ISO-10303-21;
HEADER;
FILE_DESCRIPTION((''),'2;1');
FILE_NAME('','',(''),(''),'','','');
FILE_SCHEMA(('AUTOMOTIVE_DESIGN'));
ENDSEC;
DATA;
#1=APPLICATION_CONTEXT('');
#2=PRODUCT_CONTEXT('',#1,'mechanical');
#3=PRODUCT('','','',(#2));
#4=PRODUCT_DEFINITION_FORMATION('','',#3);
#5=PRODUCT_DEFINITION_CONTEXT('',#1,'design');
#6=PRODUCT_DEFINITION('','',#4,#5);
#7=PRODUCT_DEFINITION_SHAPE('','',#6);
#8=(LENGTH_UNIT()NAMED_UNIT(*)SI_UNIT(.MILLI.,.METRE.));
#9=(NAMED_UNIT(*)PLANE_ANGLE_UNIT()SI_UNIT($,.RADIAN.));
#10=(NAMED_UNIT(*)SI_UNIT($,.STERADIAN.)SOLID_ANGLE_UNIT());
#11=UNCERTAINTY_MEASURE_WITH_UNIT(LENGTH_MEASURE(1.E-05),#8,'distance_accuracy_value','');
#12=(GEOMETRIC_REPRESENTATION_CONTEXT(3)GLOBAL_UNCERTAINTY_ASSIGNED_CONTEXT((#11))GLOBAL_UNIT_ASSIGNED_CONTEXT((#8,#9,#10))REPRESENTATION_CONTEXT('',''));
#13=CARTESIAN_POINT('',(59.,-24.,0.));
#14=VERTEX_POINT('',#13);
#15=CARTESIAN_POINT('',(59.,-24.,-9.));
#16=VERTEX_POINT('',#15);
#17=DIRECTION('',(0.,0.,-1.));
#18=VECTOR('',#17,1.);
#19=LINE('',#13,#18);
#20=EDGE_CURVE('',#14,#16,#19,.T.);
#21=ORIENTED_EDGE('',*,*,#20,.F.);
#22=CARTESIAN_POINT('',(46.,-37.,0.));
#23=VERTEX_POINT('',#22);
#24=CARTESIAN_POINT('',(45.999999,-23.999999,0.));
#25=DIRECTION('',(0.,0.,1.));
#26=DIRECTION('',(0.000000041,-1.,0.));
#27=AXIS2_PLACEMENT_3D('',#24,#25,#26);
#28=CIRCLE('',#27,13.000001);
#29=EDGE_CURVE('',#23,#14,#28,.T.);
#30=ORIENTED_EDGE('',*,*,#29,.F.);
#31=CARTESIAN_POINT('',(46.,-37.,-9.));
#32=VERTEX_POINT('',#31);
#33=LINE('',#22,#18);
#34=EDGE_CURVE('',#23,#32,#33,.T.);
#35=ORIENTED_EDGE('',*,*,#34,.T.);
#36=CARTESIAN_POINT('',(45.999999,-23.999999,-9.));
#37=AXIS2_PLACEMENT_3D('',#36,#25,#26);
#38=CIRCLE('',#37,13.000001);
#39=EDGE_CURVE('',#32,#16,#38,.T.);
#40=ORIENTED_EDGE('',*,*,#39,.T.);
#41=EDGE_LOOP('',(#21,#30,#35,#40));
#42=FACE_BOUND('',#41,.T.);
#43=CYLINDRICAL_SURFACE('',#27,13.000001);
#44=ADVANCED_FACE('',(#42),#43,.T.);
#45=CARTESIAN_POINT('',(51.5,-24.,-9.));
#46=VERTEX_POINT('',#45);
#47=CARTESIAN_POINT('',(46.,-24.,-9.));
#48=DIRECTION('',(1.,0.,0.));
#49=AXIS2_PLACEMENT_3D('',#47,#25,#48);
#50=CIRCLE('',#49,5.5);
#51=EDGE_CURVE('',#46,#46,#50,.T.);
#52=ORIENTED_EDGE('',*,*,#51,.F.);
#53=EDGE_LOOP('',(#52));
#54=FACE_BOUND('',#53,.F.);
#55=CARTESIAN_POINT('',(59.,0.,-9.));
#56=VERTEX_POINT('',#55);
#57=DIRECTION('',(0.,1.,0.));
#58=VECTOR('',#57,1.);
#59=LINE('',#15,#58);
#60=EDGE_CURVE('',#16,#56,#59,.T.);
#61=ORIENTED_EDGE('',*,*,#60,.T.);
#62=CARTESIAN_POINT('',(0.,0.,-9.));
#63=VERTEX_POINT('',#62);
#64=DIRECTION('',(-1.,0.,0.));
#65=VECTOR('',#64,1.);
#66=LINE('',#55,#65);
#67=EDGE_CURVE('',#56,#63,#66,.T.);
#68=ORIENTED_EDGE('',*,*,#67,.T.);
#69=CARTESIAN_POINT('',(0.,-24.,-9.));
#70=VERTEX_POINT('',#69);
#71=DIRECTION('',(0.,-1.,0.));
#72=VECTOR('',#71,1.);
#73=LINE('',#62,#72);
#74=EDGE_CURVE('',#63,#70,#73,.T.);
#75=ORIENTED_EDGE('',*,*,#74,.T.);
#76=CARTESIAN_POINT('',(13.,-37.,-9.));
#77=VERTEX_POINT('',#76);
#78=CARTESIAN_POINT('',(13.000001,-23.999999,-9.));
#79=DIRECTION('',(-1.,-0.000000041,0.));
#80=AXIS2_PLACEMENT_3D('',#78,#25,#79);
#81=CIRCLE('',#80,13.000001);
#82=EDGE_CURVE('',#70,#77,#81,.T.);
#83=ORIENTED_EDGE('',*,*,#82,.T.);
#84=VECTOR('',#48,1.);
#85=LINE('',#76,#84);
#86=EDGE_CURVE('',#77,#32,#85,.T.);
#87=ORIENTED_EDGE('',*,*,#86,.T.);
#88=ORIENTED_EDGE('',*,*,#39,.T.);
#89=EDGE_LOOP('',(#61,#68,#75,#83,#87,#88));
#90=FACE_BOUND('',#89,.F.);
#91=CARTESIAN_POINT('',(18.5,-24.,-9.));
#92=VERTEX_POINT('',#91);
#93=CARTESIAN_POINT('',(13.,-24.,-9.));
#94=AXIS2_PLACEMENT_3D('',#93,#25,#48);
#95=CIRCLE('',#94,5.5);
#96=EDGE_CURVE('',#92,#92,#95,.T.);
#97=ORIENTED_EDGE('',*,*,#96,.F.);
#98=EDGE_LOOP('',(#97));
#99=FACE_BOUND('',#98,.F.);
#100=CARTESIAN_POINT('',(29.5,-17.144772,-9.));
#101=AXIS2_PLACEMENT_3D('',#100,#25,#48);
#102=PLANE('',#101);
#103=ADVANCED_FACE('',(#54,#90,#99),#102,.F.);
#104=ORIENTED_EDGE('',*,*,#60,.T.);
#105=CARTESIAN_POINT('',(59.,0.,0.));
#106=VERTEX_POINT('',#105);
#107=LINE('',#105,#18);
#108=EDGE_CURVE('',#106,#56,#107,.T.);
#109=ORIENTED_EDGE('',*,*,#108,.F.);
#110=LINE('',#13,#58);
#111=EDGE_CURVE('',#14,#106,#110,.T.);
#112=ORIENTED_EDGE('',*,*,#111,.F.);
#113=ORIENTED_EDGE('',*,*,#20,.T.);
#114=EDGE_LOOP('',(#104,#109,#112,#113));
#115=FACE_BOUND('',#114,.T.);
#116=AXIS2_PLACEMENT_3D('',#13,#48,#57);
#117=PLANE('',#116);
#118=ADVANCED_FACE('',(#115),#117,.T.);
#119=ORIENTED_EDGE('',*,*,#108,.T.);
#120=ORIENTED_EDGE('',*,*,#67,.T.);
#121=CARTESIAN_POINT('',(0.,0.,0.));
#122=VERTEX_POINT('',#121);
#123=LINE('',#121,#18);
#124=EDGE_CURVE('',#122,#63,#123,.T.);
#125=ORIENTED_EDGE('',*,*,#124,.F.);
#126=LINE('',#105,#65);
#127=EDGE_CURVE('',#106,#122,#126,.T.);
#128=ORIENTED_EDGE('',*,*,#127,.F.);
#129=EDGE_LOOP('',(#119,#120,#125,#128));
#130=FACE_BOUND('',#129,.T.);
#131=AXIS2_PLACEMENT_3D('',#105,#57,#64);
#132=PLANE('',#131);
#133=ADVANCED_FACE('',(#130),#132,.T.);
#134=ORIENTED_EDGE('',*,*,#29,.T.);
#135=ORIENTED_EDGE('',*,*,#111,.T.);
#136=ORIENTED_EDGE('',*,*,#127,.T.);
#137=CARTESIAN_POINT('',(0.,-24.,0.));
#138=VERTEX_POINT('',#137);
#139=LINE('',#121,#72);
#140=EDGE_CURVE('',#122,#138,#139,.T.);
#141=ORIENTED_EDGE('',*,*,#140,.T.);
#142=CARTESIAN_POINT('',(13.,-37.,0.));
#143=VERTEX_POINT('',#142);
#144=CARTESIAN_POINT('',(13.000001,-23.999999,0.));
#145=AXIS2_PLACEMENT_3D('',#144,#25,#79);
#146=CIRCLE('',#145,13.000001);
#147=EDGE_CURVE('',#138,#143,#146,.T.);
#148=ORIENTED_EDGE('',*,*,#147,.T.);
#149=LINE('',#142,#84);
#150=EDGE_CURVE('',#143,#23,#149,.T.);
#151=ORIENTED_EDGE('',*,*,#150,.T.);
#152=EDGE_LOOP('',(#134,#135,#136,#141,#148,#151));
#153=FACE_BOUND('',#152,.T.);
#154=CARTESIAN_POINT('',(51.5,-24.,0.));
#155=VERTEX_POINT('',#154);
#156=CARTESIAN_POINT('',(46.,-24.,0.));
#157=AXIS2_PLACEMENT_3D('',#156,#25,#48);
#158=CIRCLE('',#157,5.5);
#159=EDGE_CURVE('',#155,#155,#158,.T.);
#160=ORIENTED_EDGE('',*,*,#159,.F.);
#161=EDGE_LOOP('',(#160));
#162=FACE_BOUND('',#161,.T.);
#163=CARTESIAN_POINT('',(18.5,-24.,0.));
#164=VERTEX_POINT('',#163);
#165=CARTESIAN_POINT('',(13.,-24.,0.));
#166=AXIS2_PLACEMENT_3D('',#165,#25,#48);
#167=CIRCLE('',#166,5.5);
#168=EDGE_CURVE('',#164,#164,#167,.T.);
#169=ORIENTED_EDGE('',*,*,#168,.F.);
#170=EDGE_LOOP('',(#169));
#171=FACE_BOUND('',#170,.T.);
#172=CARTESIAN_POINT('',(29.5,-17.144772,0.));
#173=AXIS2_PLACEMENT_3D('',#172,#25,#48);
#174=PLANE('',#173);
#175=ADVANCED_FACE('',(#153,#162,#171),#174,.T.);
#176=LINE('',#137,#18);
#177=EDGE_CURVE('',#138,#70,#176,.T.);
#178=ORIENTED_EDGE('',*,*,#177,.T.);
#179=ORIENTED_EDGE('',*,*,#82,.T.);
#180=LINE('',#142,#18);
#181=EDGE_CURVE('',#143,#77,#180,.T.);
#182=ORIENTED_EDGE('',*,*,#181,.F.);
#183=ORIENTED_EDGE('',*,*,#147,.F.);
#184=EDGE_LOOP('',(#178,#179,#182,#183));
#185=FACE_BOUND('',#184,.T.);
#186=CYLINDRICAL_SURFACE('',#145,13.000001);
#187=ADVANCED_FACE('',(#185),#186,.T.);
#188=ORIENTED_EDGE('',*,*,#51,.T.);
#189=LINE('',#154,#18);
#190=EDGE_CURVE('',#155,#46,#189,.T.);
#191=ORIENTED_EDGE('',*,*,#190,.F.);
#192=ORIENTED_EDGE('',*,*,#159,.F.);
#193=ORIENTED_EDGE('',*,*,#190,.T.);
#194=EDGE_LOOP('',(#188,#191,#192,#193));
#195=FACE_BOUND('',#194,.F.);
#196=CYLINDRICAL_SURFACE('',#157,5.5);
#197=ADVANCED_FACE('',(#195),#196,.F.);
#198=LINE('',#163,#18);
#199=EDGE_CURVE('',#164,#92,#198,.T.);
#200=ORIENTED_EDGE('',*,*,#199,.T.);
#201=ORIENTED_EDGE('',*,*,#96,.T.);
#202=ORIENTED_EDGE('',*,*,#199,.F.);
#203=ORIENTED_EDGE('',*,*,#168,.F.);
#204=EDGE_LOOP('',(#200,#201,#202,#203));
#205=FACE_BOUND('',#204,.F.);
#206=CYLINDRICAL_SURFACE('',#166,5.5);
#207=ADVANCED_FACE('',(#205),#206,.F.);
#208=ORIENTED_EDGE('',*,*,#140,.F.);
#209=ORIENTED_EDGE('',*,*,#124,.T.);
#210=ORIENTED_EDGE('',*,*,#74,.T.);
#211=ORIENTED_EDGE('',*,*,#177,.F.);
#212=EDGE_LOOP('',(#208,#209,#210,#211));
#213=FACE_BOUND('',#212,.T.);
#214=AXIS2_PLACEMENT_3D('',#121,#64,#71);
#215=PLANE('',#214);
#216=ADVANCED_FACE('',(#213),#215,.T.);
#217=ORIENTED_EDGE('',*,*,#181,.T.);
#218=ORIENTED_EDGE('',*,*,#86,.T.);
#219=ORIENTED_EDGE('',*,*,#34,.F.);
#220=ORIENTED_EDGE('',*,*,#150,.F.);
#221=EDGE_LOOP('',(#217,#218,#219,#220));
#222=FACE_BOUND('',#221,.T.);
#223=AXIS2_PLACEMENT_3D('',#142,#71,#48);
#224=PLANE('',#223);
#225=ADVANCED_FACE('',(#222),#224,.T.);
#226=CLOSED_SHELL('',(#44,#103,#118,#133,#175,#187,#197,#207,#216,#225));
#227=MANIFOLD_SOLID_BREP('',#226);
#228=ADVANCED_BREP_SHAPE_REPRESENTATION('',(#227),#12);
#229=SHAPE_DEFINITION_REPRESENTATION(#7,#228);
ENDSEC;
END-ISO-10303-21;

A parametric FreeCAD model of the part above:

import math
import FreeCAD as App
import Part
import Sketcher

doc = App.newDocument("Part")
body = doc.addObject("PartDesign::Body", "Body")

sketch1 = body.newObject("Sketcher::SketchObject", "Sketch")
sketch1.AttachmentSupport = (doc.getObject("XY_Plane"), [""])
sketch1.MapMode = "FlatFace"
sketch1.addGeometry([
    Part.LineSegment(App.Vector(59, 0, 0), App.Vector(0, 0, 0)),
    Part.LineSegment(App.Vector(0, 0, 0), App.Vector(0, -24, 0)),
    Part.ArcOfCircle(Part.Circle(App.Vector(13.000001, -23.999999, 0), App.Vector(0, 0, 1), 13.000001), math.radians(-179.999998), math.radians(-90.000002)),
    Part.LineSegment(App.Vector(13, -37, 0), App.Vector(46, -37, 0)),
    Part.ArcOfCircle(Part.Circle(App.Vector(45.999999, -23.999999, 0), App.Vector(0, 0, 1), 13.000001), math.radians(-89.999998), math.radians(-0.000002)),
    Part.LineSegment(App.Vector(59, -24, 0), App.Vector(59, 0, 0)),
    Part.Circle(App.Vector(13, -24, 0), App.Vector(0, 0, 1), 5.5),
    Part.Circle(App.Vector(46, -24, 0), App.Vector(0, 0, 1), 5.5),
], False)
sketch1.addConstraint([
    Sketcher.Constraint("Coincident", 0, 2, 1, 1),
    Sketcher.Constraint("Tangent", 1, 2, 2, 1),
    Sketcher.Constraint("Tangent", 2, 2, 3, 1),
    Sketcher.Constraint("Tangent", 3, 2, 4, 1),
    Sketcher.Constraint("Tangent", 4, 2, 5, 1),
    Sketcher.Constraint("Coincident", 5, 2, 0, 1),
    Sketcher.Constraint("Horizontal", 0),
    Sketcher.Constraint("Vertical", 1),
    Sketcher.Constraint("Horizontal", 3),
    Sketcher.Constraint("Vertical", 5),
    Sketcher.Constraint("Coincident", 0, 2, -1, 1),
    Sketcher.Constraint("Coincident", 6, 3, 2, 3),
    Sketcher.Constraint("Coincident", 7, 3, 4, 3),
    Sketcher.Constraint("Equal", 2, 4),
    Sketcher.Constraint("Equal", 6, 7),
    Sketcher.Constraint("Diameter", 6, 11.0),
    Sketcher.Constraint("Radius", 2, 13.000001),
    Sketcher.Constraint("DistanceX", 0, 2, 0, 1, 59.0),
    Sketcher.Constraint("DistanceY", 1, 2, 1, 1, 24.0),
])
pad1 = body.newObject("PartDesign::Pad", "Pad")
pad1.Profile = sketch1
pad1.Length = 9
pad1.Reversed = True

doc.recompute()
